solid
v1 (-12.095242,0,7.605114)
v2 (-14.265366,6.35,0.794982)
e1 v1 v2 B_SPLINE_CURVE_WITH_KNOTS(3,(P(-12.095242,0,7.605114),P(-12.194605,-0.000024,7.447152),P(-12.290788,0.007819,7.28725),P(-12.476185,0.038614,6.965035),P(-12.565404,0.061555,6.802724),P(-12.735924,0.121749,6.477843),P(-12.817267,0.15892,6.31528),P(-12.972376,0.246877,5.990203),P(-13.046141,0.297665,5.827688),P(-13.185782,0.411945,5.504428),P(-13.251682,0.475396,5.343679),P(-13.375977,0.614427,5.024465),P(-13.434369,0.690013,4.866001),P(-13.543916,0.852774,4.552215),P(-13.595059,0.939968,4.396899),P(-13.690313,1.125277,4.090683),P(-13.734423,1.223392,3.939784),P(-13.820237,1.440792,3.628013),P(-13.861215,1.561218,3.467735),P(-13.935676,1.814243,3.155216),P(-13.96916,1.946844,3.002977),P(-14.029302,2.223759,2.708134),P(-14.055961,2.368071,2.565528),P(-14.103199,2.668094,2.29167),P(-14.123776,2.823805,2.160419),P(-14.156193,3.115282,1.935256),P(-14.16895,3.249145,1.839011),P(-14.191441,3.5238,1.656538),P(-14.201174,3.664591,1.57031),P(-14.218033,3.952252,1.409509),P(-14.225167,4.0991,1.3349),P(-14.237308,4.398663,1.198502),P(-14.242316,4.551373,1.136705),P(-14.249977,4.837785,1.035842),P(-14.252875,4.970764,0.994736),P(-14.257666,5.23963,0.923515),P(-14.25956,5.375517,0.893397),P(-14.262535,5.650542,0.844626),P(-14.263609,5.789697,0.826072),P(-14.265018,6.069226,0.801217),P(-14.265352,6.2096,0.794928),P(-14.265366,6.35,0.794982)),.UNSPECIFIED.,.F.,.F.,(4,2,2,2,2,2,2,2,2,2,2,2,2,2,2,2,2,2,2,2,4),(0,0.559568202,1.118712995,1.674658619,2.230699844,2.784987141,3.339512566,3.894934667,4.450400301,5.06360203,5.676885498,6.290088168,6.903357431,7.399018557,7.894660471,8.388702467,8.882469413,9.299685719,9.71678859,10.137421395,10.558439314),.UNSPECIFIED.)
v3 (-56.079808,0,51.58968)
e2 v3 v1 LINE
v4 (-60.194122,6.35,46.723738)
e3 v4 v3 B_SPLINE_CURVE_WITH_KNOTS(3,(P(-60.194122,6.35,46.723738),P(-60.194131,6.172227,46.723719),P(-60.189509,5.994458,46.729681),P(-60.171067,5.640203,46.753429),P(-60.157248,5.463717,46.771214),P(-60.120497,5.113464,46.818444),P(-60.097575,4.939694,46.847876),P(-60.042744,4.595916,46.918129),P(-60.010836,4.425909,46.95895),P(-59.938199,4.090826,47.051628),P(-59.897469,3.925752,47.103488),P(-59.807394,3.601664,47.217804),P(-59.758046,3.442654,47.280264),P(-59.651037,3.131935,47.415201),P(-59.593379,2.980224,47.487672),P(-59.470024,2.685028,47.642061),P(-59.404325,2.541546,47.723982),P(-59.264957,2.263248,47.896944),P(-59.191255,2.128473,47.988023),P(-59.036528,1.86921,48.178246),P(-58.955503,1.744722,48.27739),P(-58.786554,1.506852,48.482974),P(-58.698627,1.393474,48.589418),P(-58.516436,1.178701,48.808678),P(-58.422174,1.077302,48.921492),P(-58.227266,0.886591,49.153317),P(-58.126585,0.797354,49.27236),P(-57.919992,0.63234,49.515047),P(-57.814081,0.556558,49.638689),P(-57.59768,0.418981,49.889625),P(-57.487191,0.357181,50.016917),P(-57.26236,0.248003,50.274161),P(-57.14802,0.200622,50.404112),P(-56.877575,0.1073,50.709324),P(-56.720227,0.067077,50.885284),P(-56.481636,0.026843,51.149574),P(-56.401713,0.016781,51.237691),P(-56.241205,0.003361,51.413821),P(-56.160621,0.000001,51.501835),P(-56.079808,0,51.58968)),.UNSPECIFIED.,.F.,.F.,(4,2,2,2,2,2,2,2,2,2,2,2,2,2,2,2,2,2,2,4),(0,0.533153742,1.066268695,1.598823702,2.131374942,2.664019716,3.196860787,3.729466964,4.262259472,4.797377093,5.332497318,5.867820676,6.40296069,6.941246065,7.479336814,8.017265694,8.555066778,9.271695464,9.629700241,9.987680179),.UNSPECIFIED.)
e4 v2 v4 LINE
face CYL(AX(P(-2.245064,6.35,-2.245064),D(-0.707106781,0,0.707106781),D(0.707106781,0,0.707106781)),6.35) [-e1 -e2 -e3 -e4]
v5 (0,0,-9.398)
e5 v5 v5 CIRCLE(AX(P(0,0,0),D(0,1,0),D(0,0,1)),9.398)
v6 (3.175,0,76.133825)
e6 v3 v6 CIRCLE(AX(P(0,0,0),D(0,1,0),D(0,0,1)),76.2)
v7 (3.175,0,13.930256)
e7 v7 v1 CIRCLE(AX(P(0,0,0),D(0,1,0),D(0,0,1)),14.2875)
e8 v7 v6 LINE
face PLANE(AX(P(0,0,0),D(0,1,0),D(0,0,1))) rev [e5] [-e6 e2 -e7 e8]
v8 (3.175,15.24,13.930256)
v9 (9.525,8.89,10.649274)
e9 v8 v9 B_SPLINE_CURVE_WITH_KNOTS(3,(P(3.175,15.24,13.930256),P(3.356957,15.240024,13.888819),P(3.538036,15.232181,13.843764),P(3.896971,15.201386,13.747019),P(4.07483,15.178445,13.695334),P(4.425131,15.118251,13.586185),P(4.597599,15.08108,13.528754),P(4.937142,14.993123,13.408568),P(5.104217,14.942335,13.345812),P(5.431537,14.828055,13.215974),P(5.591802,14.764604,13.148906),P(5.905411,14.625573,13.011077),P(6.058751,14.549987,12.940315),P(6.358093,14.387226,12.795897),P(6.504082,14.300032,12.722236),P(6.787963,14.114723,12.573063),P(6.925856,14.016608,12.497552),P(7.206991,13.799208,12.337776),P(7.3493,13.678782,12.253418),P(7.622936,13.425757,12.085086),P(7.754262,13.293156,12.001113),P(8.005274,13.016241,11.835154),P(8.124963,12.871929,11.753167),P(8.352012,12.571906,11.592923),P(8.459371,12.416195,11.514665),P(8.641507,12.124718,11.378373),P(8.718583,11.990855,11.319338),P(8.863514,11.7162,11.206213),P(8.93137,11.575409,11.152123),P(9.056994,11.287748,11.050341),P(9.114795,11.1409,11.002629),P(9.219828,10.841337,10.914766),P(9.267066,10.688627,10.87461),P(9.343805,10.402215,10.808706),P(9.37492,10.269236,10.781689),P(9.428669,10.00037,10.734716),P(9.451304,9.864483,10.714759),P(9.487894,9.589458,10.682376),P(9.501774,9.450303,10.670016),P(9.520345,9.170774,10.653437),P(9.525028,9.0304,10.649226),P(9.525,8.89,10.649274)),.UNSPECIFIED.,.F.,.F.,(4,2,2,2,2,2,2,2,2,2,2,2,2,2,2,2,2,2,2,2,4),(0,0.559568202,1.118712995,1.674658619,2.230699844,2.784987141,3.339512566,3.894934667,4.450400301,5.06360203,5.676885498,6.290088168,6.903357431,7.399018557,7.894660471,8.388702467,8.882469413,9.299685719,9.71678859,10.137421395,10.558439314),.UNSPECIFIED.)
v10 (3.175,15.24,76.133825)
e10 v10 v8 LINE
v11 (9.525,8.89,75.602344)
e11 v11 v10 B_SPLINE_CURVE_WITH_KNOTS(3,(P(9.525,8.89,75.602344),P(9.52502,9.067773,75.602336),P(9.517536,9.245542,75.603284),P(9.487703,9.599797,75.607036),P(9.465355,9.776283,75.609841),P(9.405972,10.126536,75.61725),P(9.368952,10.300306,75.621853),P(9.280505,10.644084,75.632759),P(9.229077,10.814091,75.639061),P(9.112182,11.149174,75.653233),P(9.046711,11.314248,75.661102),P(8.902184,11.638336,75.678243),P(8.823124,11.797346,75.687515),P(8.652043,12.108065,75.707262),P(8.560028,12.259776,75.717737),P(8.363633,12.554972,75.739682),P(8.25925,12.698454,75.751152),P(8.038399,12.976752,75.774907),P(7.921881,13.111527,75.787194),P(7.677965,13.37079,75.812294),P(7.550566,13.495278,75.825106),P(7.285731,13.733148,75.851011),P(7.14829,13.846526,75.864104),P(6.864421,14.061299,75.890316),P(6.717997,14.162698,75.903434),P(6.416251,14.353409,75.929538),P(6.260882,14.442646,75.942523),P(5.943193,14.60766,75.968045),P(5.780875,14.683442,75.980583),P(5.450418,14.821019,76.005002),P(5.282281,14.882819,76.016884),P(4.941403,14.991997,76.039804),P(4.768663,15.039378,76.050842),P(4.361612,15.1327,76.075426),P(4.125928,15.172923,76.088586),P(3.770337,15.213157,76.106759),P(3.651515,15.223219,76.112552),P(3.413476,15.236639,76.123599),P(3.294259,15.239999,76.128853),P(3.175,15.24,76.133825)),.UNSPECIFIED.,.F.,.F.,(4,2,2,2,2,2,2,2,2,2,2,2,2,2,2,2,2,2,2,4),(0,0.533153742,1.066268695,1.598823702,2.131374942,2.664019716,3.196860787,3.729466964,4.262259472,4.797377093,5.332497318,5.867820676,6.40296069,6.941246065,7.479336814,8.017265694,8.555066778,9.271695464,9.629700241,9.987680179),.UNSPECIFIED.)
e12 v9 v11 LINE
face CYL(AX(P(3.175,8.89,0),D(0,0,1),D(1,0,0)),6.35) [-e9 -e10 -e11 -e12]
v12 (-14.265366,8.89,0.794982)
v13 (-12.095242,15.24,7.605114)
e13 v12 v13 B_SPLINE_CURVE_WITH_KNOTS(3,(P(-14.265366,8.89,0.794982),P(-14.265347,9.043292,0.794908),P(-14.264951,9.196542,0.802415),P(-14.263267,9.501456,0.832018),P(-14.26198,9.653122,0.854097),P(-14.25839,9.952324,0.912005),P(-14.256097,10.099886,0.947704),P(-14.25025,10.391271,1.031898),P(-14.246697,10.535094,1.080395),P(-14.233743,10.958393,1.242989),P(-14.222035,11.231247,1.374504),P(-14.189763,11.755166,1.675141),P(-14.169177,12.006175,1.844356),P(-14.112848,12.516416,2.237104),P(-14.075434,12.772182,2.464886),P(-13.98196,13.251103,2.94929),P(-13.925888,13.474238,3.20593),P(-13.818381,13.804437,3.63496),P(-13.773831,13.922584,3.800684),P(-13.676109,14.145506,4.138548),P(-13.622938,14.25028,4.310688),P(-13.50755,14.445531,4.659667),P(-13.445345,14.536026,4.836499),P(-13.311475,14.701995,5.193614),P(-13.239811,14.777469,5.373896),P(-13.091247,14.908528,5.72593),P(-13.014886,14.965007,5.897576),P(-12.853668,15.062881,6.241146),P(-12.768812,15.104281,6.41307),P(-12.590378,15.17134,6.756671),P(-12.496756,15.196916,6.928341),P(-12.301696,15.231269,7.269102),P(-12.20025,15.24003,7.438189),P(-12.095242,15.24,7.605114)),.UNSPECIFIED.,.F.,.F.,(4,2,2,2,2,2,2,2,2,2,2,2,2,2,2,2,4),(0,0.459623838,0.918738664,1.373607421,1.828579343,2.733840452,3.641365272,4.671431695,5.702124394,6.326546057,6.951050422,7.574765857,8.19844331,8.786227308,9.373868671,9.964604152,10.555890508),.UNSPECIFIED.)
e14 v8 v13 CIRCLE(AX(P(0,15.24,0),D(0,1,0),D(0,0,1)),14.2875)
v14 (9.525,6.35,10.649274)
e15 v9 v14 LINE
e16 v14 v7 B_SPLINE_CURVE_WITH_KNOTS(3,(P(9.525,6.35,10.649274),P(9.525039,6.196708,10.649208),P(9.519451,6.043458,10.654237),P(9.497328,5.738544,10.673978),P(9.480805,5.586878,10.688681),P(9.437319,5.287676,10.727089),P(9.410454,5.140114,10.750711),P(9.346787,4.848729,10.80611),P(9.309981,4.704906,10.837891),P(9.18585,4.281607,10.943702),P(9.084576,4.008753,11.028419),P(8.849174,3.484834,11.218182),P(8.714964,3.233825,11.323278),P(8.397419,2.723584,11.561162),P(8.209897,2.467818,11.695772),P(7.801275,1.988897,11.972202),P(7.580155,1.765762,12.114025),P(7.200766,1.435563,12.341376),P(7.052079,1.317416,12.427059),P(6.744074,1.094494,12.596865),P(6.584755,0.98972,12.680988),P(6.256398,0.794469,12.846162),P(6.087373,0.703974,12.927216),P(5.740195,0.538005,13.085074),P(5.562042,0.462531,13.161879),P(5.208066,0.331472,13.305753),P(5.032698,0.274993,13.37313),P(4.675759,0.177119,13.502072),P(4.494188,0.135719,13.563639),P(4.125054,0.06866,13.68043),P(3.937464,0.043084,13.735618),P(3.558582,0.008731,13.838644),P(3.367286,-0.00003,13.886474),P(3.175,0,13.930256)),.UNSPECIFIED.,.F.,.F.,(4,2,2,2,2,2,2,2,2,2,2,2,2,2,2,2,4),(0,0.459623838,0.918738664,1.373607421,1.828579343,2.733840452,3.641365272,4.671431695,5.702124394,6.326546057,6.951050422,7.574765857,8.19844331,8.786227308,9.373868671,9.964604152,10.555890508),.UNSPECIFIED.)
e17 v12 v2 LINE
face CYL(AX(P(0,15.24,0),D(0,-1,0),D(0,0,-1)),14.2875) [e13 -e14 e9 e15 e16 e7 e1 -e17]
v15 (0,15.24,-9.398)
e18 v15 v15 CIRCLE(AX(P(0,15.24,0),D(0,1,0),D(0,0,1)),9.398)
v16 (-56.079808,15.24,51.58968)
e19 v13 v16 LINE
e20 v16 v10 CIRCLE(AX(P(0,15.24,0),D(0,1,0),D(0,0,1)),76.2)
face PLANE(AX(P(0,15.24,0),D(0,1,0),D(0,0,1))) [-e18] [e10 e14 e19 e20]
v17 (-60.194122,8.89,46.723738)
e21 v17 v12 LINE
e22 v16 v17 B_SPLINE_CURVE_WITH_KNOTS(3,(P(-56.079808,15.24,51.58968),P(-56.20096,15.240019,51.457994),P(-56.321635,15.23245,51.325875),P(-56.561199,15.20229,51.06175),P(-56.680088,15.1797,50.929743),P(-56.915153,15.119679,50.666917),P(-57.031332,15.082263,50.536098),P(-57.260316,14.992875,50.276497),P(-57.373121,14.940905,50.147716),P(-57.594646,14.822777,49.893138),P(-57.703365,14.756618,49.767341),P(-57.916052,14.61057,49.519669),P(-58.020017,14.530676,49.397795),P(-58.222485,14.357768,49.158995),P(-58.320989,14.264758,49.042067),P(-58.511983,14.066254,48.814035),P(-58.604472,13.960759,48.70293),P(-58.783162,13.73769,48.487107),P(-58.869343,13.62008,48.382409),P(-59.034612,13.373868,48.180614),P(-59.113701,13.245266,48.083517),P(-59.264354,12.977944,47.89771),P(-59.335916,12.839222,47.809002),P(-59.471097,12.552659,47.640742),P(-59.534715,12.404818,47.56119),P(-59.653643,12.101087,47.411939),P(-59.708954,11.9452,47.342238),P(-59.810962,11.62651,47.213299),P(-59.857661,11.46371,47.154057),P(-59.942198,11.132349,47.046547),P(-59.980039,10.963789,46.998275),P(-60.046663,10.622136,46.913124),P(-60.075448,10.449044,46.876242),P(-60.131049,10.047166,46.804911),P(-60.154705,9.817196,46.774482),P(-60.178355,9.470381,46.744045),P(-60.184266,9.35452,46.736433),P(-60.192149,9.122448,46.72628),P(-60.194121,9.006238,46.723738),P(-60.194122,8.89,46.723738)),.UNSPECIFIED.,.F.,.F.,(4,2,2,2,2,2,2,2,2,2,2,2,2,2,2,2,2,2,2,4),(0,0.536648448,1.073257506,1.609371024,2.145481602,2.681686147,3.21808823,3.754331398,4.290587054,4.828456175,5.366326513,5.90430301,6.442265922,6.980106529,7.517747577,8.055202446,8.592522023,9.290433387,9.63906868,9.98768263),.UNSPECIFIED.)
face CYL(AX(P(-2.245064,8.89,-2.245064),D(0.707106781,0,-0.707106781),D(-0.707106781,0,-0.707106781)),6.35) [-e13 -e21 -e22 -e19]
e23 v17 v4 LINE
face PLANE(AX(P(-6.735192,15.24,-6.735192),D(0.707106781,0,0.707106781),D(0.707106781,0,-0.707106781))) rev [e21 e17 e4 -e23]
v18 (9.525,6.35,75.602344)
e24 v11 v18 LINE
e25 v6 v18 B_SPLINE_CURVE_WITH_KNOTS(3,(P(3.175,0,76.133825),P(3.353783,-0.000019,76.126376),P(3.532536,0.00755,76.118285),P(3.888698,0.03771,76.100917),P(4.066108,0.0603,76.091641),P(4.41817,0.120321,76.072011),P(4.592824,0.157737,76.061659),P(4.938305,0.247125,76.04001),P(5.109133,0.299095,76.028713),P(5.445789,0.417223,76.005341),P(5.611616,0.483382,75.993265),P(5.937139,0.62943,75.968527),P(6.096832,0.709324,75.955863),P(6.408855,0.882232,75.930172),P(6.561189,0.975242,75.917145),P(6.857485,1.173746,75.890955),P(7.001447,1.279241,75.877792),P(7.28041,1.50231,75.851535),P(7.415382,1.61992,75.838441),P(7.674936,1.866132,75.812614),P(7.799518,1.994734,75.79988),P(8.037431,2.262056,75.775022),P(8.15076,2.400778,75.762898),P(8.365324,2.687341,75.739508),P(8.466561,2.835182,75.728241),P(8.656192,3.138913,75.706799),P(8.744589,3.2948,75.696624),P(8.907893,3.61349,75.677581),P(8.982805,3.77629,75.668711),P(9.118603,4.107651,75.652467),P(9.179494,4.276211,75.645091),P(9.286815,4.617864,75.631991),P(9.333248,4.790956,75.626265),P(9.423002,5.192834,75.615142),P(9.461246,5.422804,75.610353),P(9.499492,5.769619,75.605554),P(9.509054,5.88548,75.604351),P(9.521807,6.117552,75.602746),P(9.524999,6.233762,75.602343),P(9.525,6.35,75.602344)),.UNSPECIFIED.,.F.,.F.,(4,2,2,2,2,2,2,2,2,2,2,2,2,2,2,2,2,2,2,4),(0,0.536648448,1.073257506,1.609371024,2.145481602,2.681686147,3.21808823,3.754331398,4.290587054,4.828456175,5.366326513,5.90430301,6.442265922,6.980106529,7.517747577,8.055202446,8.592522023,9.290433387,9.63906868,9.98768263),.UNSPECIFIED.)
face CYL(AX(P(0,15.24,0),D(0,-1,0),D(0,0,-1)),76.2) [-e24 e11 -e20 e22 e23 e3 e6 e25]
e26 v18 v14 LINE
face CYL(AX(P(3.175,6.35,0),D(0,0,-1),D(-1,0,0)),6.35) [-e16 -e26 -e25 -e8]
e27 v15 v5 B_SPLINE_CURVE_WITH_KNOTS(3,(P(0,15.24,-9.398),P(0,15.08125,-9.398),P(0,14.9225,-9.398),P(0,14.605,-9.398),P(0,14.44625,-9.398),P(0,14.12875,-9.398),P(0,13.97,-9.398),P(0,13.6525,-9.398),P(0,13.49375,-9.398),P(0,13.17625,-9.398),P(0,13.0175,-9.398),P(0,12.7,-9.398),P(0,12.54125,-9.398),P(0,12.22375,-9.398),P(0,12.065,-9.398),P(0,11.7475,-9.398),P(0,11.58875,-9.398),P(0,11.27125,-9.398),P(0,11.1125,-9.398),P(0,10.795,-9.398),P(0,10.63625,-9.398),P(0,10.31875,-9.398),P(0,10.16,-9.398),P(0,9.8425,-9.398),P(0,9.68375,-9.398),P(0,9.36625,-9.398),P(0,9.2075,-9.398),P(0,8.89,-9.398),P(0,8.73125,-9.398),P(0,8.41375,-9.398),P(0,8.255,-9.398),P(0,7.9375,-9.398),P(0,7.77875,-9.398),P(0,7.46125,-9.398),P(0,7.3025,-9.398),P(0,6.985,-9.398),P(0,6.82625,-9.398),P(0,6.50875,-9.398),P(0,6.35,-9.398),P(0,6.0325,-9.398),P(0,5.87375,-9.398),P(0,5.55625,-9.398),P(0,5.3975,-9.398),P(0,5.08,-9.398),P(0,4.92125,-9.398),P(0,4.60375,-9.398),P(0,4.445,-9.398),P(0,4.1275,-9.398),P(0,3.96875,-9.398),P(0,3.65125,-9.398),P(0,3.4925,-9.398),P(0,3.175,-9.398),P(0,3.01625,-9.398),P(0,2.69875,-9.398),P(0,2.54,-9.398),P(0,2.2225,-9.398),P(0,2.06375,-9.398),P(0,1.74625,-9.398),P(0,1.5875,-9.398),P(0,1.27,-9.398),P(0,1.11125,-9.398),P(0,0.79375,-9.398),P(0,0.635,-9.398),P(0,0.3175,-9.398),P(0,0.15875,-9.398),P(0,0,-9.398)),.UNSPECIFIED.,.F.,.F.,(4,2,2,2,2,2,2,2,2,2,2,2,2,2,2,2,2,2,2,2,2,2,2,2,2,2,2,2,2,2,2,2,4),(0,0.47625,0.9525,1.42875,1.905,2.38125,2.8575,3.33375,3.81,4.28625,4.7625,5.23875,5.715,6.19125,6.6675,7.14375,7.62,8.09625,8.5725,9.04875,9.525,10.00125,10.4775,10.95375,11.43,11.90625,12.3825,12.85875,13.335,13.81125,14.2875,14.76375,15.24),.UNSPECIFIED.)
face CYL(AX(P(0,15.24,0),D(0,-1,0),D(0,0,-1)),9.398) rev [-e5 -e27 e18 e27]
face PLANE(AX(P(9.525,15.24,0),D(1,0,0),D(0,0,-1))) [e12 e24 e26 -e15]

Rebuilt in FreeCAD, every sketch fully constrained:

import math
import FreeCAD as App
import Part
import Sketcher
from FreeCAD import Vector
Q = App.Units.Quantity


def edges_at(feature, points):
    """Names of the edges that pass closest to the given points."""
    edges = feature.Shape.Edges
    near = lambda p: min(range(len(edges)), key=lambda i: edges[i].distToShape(Part.Vertex(*p))[0])
    return sorted({f"Edge{near(p) + 1}" for p in points})

doc = App.newDocument("Part")
body = doc.addObject("PartDesign::Body", "Body")

sketch1 = body.newObject("Sketcher::SketchObject", "Sketch")
sketch1.AttachmentSupport = (doc.getObject("XZ_Plane"), [""])
sketch1.MapMode = "FlatFace"
sketch1.addGeometry([
    Part.LineSegment(Vector(-14, 1, 0), Vector(-60, 47, 0)),
    Part.ArcOfCircle(Part.Circle(Vector(0, 0, 0), Vector(0, 0, 1), 76), math.radians(83), math.radians(142)),
    Part.LineSegment(Vector(10, 76, 0), Vector(10, 11, 0)),
    Part.ArcOfCircle(Part.Circle(Vector(0, 0, 0), Vector(0, 0, 1), 14), math.radians(177), math.radians(408)),
    Part.Circle(Vector(0, 0, 0), Vector(0, 0, 1), 9),
], False)
sketch1.addConstraint([
    Sketcher.Constraint("Coincident", 0, 2, 1, 2),
    Sketcher.Constraint("Coincident", 1, 1, 2, 1),
    Sketcher.Constraint("Coincident", 2, 2, 3, 2),
    Sketcher.Constraint("Coincident", 3, 1, 0, 1),
    Sketcher.Constraint("Vertical", 2),
    Sketcher.Constraint("Coincident", 1, 3, -1, 1),
    Sketcher.Constraint("Coincident", 3, 3, -1, 1),
    Sketcher.Constraint("Coincident", 4, 3, -1, 1),
    Sketcher.Constraint("Radius", 1, Q("3 in")),
    Sketcher.Constraint("Diameter", 4, Q("0.74 in")),
    Sketcher.Constraint("Angle", 0, Q("135 deg")),
    Sketcher.Constraint("Radius", 3, Q("0.5625 in")),
    Sketcher.Constraint("DistanceX", -1, 1, 1, 1, Q("0.375 in")),
    Sketcher.Constraint("Distance", 0, 64.95307),
])
pad1 = body.newObject("PartDesign::Pad", "Pad")
pad1.Profile = sketch1
pad1.Length = Q("0.6 in")
pad1.Reversed = True
doc.recompute()

fillet = body.newObject("PartDesign::Fillet", "Fillet")
fillet.Base = (pad1, edges_at(pad1, [
    (9.525, 15.24, 43.126),
    (-37.23, 15.24, 23.759),
    (9.525, 0, 43.126),
    (-37.23, 0, 23.759),
]))
fillet.Radius = Q("0.25 in")

doc.recompute()
